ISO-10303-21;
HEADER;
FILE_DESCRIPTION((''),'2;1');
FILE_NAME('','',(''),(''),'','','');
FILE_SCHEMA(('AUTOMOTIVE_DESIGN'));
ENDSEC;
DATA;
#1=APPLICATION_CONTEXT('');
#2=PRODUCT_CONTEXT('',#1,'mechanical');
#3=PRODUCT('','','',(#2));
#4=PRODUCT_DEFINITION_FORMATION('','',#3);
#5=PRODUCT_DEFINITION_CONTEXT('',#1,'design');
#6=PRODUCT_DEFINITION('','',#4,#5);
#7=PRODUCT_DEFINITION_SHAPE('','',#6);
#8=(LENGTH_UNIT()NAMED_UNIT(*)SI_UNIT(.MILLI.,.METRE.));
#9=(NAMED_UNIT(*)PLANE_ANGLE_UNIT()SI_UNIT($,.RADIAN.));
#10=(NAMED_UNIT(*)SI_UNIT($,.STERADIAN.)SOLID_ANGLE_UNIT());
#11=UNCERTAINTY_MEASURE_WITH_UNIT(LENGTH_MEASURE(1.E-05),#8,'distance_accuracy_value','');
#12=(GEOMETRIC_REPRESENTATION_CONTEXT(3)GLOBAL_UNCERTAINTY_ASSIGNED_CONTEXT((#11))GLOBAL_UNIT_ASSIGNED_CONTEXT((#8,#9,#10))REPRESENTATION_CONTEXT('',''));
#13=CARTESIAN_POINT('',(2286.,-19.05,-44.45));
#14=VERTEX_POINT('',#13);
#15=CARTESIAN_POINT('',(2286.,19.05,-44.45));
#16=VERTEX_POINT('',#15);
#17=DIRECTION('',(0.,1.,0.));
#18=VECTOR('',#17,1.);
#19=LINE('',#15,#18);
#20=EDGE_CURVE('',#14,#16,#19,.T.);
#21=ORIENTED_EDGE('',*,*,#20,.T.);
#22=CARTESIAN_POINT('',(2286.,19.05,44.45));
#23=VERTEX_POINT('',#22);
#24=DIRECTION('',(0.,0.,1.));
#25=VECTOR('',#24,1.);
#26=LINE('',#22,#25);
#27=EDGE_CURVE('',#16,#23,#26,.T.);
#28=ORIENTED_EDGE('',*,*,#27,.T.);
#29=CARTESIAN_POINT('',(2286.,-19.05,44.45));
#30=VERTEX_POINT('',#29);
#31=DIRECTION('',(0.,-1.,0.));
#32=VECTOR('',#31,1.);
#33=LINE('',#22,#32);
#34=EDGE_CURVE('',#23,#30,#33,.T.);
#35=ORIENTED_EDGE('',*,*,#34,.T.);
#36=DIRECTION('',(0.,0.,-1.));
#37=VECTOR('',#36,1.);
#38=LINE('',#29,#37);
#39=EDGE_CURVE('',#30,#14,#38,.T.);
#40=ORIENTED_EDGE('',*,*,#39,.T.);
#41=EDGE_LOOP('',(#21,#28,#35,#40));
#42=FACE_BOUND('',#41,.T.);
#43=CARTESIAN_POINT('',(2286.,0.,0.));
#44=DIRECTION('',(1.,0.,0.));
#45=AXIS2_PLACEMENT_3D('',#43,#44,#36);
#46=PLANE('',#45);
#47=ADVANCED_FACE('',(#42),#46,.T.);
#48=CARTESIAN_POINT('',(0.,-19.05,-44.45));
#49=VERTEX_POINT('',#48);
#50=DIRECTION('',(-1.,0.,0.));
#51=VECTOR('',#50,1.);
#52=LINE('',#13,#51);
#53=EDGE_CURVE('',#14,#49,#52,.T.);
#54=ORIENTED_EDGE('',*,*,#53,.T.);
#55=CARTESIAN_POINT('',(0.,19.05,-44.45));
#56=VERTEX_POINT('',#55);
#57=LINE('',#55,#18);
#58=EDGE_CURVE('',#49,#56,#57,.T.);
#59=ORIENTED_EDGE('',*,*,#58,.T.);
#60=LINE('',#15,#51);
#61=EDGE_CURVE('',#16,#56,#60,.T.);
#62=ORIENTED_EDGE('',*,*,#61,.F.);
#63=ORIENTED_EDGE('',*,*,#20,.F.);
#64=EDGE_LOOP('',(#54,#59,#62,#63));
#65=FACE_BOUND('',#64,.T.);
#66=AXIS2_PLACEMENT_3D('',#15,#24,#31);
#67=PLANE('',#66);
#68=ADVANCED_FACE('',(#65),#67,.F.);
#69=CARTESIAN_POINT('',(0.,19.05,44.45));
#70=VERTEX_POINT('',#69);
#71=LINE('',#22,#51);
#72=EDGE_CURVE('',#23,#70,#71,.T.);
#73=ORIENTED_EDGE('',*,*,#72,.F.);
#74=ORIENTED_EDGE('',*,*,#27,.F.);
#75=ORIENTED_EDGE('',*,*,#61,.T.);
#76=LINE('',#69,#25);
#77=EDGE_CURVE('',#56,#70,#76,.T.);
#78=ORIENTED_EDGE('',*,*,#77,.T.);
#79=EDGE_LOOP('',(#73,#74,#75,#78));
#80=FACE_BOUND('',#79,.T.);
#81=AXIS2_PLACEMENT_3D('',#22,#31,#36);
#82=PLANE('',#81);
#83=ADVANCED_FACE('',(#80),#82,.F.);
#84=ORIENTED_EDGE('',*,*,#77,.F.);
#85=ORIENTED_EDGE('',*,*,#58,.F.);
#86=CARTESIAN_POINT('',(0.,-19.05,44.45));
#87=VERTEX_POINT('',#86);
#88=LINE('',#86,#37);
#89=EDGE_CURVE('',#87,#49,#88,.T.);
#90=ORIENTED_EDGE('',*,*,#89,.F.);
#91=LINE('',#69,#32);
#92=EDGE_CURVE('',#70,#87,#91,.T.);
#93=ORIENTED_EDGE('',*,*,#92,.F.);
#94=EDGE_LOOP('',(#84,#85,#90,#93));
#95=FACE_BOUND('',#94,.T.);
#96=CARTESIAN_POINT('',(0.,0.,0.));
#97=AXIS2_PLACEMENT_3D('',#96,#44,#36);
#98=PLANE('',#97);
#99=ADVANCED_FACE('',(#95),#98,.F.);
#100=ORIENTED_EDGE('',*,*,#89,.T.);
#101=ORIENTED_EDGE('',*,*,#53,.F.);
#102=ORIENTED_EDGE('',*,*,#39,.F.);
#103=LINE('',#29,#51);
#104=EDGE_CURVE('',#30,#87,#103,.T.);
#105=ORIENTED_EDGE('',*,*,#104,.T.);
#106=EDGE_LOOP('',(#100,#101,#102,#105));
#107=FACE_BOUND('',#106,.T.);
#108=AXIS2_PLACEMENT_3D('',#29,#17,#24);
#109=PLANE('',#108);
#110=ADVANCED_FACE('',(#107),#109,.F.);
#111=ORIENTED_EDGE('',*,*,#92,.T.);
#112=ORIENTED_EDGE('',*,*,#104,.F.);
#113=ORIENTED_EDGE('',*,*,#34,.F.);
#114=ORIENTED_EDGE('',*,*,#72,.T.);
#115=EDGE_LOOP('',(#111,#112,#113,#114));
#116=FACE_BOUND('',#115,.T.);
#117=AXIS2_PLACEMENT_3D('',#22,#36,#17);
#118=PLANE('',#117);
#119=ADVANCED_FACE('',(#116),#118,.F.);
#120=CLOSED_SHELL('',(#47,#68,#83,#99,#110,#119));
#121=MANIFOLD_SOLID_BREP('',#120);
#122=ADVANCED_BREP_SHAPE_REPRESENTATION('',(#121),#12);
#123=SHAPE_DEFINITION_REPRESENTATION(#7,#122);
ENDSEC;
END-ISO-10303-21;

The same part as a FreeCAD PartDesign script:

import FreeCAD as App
import Part
import Sketcher

V = App.Vector
Q = App.Units.Quantity

doc = App.newDocument("Part")
body = doc.addObject("PartDesign::Body", "Body")

sketch1 = body.newObject("Sketcher::SketchObject", "Sketch")
sketch1.AttachmentSupport = (doc.getObject("YZ_Plane"), [""])
sketch1.MapMode = "FlatFace"
sketch1.addGeometry(Part.LineSegment(V(19, 44, 0), V(-19, 44, 0)), False)
sketch1.addGeometry(Part.LineSegment(V(-19, 44, 0), V(-19, -44, 0)), False)
sketch1.addGeometry(Part.LineSegment(V(-19, -44, 0), V(19, -44, 0)), False)
sketch1.addGeometry(Part.LineSegment(V(19, -44, 0), V(19, 44, 0)), False)
sketch1.addConstraint(Sketcher.Constraint("Coincident", 0, 2, 1, 1))
sketch1.addConstraint(Sketcher.Constraint("Coincident", 1, 2, 2, 1))
sketch1.addConstraint(Sketcher.Constraint("Coincident", 2, 2, 3, 1))
sketch1.addConstraint(Sketcher.Constraint("Coincident", 3, 2, 0, 1))
sketch1.addConstraint(Sketcher.Constraint("Horizontal", 0))
sketch1.addConstraint(Sketcher.Constraint("Vertical", 1))
sketch1.addConstraint(Sketcher.Constraint("Horizontal", 2))
sketch1.addConstraint(Sketcher.Constraint("Vertical", 3))
sketch1.addConstraint(Sketcher.Constraint("Symmetric", 0, 2, 2, 2, -1, 1))
sketch1.addConstraint(Sketcher.Constraint("DistanceX", 0, 2, 0, 1, Q("1.5 in")))
sketch1.addConstraint(Sketcher.Constraint("DistanceY", 1, 2, 1, 1, Q("3.5 in")))
pad1 = body.newObject("PartDesign::Pad", "Pad")
pad1.Profile = sketch1
pad1.Length = Q("90 in")

doc.recompute()
